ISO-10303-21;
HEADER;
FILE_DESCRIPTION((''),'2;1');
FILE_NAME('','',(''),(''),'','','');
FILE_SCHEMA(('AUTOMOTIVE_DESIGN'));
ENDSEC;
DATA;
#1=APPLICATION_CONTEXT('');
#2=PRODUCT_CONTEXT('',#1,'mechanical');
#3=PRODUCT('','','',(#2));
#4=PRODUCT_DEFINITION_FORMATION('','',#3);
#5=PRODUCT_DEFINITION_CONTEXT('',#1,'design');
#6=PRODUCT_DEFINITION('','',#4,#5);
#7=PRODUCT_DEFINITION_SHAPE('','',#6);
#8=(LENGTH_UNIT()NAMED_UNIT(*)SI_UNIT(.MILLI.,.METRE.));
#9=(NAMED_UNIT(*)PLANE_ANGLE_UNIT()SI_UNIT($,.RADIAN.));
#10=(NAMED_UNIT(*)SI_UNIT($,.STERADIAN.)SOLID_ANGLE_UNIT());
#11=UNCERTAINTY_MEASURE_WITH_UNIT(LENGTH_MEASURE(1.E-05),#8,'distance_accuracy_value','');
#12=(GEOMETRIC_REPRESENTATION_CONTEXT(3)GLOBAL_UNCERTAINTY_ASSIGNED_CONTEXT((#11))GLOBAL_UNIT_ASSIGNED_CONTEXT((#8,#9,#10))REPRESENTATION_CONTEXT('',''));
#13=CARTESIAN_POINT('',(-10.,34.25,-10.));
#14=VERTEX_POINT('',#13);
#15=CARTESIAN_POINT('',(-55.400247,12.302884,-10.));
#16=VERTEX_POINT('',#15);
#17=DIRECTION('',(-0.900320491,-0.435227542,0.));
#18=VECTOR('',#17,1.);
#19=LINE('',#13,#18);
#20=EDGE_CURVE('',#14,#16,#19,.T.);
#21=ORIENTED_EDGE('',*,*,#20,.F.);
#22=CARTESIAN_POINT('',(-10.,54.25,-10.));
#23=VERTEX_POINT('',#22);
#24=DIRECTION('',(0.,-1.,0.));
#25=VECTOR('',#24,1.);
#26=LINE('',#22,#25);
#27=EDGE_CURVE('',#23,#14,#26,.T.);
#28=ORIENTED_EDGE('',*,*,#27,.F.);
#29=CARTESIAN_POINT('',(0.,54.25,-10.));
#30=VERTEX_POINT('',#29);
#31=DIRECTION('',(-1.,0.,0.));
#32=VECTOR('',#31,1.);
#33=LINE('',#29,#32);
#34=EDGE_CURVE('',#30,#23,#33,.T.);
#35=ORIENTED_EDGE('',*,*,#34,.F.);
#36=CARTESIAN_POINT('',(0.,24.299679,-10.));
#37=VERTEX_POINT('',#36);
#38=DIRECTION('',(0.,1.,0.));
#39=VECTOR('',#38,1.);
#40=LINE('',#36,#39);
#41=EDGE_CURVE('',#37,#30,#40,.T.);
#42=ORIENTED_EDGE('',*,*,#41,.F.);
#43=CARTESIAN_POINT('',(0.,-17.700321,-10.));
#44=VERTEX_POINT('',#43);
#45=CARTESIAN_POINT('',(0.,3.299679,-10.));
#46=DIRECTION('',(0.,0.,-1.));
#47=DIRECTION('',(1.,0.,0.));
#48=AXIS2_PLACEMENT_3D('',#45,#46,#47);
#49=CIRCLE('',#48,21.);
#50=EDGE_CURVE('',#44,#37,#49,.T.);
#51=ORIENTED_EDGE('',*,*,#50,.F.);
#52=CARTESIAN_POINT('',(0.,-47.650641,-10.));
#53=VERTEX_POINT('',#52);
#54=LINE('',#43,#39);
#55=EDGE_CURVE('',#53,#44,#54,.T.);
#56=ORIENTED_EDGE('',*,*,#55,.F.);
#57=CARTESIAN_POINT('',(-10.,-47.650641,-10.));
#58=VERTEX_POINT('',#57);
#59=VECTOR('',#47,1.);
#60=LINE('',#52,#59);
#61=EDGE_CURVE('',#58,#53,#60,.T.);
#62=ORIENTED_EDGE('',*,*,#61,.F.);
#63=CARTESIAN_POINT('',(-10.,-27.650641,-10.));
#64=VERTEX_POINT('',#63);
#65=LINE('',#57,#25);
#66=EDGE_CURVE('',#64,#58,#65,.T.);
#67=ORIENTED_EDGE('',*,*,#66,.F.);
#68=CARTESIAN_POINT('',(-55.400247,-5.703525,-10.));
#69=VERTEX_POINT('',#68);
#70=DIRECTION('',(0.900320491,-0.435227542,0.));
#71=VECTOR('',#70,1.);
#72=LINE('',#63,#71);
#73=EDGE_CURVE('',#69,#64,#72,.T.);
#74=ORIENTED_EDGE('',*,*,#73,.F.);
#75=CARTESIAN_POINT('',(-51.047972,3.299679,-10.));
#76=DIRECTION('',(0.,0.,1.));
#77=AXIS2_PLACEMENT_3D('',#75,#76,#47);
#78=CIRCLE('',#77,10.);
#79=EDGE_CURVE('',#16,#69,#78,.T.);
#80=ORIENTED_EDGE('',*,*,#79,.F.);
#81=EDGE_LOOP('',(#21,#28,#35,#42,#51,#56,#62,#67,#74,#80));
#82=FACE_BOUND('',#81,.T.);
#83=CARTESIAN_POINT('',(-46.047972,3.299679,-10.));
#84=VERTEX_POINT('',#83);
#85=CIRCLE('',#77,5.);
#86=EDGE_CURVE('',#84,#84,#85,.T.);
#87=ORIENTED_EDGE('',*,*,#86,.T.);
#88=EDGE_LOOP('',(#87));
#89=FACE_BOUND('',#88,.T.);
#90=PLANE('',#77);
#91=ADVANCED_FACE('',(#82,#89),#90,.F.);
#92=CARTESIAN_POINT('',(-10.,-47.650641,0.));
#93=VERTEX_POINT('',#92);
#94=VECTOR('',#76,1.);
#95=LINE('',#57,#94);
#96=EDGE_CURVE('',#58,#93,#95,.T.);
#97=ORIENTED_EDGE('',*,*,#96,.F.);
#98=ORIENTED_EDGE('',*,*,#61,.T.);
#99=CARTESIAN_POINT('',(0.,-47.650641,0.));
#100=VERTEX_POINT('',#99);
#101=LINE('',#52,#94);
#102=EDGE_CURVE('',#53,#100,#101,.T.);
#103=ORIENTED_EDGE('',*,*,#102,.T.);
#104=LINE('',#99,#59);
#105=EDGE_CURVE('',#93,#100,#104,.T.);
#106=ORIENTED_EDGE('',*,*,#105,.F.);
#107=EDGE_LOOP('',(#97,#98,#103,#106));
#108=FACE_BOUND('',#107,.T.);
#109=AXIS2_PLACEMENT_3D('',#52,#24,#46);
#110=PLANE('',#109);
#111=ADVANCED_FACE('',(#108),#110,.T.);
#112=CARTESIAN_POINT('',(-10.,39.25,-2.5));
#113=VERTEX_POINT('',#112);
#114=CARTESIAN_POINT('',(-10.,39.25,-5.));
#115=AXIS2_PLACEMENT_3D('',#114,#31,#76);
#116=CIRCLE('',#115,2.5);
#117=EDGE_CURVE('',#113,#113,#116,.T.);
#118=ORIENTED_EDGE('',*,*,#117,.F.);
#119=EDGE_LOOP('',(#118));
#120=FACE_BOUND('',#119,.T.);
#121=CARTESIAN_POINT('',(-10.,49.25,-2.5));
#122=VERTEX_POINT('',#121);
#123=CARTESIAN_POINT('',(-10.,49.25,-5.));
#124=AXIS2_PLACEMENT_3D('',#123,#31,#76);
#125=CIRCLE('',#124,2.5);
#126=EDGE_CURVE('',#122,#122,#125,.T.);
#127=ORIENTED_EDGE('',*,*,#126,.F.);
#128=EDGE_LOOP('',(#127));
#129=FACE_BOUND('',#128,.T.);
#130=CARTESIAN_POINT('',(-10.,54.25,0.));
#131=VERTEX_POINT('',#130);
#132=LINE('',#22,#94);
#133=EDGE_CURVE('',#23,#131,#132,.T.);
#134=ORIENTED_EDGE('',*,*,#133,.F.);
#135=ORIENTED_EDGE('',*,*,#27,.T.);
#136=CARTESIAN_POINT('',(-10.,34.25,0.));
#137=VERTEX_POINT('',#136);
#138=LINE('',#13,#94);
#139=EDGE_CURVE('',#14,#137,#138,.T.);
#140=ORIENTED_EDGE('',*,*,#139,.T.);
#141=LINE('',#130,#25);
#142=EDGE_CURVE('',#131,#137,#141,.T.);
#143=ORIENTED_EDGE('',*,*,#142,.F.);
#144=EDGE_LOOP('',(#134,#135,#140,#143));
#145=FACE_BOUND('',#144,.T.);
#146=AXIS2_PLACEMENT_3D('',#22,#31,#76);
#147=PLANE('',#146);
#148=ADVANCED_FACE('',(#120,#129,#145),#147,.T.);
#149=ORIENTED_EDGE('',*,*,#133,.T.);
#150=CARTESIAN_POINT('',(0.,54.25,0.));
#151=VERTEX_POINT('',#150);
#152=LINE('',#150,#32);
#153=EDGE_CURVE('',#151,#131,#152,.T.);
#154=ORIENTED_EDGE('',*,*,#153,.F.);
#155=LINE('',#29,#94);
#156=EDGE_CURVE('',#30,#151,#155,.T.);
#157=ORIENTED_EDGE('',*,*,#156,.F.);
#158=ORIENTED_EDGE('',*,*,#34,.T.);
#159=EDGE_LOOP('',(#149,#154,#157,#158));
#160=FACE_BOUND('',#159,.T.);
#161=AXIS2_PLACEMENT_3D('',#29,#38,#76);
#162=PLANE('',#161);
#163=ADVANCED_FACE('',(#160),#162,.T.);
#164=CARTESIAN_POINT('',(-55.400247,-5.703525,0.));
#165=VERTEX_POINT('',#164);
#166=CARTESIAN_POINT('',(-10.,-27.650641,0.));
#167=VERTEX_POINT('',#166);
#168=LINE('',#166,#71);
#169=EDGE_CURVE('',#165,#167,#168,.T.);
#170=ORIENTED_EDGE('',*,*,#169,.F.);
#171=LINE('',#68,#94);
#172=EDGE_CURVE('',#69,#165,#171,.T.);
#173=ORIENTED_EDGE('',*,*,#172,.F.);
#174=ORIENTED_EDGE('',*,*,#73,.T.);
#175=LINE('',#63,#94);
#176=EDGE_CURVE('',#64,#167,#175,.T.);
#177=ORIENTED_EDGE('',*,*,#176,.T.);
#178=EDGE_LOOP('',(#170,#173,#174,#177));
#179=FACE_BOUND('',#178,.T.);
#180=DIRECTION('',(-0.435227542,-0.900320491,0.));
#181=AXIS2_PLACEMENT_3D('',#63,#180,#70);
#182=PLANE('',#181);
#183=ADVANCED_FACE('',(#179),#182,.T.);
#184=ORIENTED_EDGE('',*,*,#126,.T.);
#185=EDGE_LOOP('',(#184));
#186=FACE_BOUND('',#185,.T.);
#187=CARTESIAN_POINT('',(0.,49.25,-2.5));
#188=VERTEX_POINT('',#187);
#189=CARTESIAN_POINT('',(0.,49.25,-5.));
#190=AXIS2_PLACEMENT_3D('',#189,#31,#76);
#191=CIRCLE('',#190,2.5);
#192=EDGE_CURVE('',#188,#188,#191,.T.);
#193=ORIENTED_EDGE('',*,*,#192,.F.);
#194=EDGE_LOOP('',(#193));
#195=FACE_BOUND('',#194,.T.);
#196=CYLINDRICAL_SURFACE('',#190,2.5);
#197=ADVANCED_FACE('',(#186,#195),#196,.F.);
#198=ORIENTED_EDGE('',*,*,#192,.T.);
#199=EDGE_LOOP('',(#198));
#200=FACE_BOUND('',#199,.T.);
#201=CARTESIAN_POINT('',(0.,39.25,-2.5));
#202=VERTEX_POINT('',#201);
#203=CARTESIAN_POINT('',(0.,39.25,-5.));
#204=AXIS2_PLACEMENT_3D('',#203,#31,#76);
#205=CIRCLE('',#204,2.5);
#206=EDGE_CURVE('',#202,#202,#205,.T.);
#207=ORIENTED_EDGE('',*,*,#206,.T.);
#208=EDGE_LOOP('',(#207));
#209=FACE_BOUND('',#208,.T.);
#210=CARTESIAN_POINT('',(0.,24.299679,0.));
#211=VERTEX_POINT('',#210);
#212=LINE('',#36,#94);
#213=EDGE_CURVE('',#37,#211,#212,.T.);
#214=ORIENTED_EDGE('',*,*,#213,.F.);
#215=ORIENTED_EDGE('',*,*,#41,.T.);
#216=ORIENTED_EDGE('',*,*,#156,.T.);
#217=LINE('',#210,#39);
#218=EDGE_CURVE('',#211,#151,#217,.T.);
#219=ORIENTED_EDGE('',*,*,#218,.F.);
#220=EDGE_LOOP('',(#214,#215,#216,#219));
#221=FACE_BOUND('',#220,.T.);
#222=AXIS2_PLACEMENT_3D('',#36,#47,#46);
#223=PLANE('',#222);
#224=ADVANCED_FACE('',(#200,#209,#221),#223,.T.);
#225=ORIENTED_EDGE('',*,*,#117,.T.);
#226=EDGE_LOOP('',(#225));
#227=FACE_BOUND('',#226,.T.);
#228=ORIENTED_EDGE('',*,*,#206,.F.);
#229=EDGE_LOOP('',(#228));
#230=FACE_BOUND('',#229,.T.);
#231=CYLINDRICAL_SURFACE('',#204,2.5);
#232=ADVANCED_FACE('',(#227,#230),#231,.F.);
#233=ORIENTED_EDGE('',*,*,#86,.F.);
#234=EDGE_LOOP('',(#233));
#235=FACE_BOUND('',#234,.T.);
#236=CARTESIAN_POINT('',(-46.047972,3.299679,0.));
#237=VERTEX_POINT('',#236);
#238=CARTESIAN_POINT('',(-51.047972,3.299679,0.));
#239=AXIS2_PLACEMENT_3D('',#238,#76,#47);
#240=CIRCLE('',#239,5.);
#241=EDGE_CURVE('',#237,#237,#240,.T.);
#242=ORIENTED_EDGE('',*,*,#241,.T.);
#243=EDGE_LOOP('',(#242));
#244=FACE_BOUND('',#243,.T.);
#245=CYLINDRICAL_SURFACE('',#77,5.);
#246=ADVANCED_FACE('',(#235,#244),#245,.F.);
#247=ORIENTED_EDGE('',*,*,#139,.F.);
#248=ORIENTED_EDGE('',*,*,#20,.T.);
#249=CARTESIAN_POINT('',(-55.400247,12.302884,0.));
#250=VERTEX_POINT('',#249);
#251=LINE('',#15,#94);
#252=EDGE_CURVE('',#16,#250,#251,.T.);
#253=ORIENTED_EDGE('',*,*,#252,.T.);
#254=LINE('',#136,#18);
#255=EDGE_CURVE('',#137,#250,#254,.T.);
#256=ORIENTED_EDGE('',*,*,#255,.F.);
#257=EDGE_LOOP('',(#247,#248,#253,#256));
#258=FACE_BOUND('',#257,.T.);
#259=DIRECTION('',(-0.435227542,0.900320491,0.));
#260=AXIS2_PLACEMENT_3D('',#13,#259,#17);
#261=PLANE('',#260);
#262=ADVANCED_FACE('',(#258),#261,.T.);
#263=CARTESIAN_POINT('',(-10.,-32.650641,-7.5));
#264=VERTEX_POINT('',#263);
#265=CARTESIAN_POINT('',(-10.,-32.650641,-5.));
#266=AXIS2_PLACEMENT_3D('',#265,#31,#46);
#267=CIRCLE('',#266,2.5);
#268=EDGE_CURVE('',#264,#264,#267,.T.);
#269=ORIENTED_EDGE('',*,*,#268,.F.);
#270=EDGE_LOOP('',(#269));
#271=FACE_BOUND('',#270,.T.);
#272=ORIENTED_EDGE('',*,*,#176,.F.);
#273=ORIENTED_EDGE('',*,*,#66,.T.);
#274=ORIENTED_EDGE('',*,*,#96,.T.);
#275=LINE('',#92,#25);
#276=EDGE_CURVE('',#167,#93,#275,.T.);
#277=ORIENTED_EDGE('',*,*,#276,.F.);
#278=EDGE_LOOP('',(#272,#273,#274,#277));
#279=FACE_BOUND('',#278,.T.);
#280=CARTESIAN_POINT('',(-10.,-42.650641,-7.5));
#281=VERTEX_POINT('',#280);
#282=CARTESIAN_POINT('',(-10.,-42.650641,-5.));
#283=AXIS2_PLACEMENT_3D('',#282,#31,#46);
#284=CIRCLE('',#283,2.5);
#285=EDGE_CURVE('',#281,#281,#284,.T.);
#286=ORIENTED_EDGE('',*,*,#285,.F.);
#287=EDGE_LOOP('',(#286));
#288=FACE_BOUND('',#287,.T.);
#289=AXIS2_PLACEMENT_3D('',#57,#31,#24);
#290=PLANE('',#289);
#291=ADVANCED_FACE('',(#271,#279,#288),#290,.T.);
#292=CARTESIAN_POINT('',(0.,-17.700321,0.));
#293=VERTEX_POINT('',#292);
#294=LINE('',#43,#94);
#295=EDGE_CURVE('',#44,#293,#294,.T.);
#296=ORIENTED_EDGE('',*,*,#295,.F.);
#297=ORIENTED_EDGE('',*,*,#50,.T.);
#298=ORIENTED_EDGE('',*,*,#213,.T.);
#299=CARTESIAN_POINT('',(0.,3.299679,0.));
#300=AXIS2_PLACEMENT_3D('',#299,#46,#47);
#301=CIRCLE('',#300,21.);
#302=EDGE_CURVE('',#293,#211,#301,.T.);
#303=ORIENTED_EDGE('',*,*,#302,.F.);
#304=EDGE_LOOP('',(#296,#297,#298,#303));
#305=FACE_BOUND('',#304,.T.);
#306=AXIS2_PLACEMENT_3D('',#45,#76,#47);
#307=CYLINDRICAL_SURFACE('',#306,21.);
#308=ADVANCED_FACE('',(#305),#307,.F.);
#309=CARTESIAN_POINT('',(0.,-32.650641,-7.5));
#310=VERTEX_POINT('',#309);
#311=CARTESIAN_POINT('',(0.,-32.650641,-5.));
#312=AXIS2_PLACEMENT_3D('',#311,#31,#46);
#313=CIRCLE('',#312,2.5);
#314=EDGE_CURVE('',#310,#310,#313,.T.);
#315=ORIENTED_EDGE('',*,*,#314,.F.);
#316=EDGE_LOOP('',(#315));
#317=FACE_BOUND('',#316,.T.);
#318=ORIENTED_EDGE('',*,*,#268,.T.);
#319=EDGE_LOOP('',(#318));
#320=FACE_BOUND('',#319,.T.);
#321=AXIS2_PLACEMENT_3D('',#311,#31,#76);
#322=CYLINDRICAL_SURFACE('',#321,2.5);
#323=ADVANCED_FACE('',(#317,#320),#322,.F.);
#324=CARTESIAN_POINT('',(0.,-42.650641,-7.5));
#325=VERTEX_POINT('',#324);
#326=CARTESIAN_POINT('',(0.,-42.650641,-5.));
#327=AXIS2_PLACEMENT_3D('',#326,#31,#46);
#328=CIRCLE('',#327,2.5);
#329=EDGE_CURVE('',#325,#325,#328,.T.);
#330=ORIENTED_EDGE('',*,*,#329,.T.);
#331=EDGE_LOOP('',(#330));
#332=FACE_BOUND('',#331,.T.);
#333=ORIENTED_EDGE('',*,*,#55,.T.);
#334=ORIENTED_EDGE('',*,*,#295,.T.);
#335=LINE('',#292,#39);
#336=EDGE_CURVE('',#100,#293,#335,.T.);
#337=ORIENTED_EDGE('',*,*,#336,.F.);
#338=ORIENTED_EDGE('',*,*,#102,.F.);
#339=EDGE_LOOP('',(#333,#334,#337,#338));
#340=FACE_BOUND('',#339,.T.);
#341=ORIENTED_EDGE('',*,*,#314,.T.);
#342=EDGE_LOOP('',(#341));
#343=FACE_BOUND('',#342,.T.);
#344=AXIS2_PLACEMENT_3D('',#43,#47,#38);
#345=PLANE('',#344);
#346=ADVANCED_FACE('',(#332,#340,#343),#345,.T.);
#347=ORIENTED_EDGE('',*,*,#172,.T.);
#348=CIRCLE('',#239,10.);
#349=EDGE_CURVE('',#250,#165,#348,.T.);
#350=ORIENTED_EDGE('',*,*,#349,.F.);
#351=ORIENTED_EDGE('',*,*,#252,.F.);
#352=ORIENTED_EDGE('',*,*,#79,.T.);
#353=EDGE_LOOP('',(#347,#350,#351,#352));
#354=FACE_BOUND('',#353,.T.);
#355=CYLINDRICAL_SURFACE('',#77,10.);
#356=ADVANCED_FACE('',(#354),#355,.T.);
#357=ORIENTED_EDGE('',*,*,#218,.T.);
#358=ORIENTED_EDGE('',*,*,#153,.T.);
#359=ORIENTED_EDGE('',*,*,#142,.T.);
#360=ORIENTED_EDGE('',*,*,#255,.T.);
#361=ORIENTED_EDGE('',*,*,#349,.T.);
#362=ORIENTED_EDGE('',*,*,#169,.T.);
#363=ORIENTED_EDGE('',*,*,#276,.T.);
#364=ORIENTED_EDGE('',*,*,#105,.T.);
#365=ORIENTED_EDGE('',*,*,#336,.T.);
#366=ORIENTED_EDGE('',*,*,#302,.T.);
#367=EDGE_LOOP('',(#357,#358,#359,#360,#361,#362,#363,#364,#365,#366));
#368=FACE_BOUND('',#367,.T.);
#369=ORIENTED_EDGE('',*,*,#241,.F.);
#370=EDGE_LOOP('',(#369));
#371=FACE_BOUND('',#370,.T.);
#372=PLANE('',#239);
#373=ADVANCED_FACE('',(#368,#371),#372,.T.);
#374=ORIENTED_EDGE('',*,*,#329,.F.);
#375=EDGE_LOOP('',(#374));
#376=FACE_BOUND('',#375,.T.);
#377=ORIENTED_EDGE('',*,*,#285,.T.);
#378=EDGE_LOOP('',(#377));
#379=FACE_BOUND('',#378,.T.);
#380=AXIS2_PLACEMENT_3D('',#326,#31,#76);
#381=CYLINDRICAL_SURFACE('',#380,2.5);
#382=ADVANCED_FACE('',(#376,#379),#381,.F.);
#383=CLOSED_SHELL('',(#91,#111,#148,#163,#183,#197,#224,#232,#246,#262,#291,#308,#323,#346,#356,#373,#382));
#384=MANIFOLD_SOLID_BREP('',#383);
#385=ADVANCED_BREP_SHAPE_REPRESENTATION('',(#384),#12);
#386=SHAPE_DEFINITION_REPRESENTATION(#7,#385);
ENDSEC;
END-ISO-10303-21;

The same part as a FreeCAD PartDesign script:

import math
import FreeCAD as App
import Part
import Sketcher

V = App.Vector

doc = App.newDocument("Part")
body = doc.addObject("PartDesign::Body", "Body")

# Sketch on XY plane
sketch1 = body.newObject("Sketcher::SketchObject", "Sketch")
sketch1.AttachmentSupport = (doc.getObject("XY_Plane"), [""])
sketch1.MapMode = "FlatFace"
sketch1.addGeometry(Part.LineSegment(V(0, 24.299679, 0), V(0, 54.25, 0)), False)
sketch1.addGeometry(Part.LineSegment(V(0, 54.25, 0), V(-10, 54.25, 0)), False)
sketch1.addGeometry(Part.LineSegment(V(-10, 54.25, 0), V(-10, 34.25, 0)), False)
sketch1.addGeometry(Part.LineSegment(V(-10, 34.25, 0), V(-55.400247, 12.302884, 0)), False)
sketch1.addGeometry(Part.ArcOfCircle(Part.Circle(V(-51.047972, 3.299679, 0), V(0, 0, 1), 10), math.radians(115.799774), math.radians(244.200226)), False)
sketch1.addGeometry(Part.LineSegment(V(-55.400247, -5.703525, 0), V(-10, -27.650641, 0)), False)
sketch1.addGeometry(Part.LineSegment(V(-10, -27.650641, 0), V(-10, -47.650641, 0)), False)
sketch1.addGeometry(Part.LineSegment(V(-10, -47.650641, 0), V(0, -47.650641, 0)), False)
sketch1.addGeometry(Part.LineSegment(V(0, -47.650641, 0), V(0, -17.700321, 0)), False)
sketch1.addGeometry(Part.ArcOfCircle(Part.Circle(V(0, 3.299679, 0), V(0, 0, 1), 21), math.radians(90), math.radians(270)), False)
sketch1.addConstraint(Sketcher.Constraint("Coincident", 0, 2, 1, 1))
sketch1.addConstraint(Sketcher.Constraint("Coincident", 1, 2, 2, 1))
sketch1.addConstraint(Sketcher.Constraint("Coincident", 2, 2, 3, 1))
sketch1.addConstraint(Sketcher.Constraint("Tangent", 3, 2, 4, 1))
sketch1.addConstraint(Sketcher.Constraint("Tangent", 4, 2, 5, 1))
sketch1.addConstraint(Sketcher.Constraint("Coincident", 5, 2, 6, 1))
sketch1.addConstraint(Sketcher.Constraint("Coincident", 6, 2, 7, 1))
sketch1.addConstraint(Sketcher.Constraint("Coincident", 7, 2, 8, 1))
sketch1.addConstraint(Sketcher.Constraint("Coincident", 8, 2, 9, 2))
sketch1.addConstraint(Sketcher.Constraint("Coincident", 9, 1, 0, 1))
sketch1.addConstraint(Sketcher.Constraint("Vertical", 0))
sketch1.addConstraint(Sketcher.Constraint("Horizontal", 1))
sketch1.addConstraint(Sketcher.Constraint("Vertical", 2))
sketch1.addConstraint(Sketcher.Constraint("Vertical", 6))
sketch1.addConstraint(Sketcher.Constraint("Horizontal", 7))
sketch1.addConstraint(Sketcher.Constraint("Vertical", 8))
sketch1.addConstraint(Sketcher.Constraint("PointOnObject", 9, 3, -2))
sketch1.addConstraint(Sketcher.Constraint("PointOnObject", 0, 2, -2))
sketch1.addConstraint(Sketcher.Constraint("PointOnObject", 7, 2, -2))
sketch1.addConstraint(Sketcher.Constraint("Horizontal", 4, 3, 9, 3))
sketch1.addConstraint(Sketcher.Constraint("Vertical", 3, 2, 4, 2))
sketch1.addConstraint(Sketcher.Constraint("Vertical", 2, 2, 5, 2))
sketch1.addConstraint(Sketcher.Constraint("Equal", 2, 6))
sketch1.addConstraint(Sketcher.Constraint("Radius", 4, 10.0))
sketch1.addConstraint(Sketcher.Constraint("Radius", 9, 21.0))
sketch1.addConstraint(Sketcher.Constraint("DistanceX", 1, 2, 1, 1, 10.0))
sketch1.addConstraint(Sketcher.Constraint("DistanceY", 2, 2, 2, 1, 20.0))
sketch1.addConstraint(Sketcher.Constraint("DistanceY", -1, 1, 0, 2, 54.25))
sketch1.addConstraint(Sketcher.Constraint("DistanceY", 0, 1, 0, 2, 29.950321))
sketch1.addConstraint(Sketcher.Constraint("Distance", 3, 50.426762))
pad1 = body.newObject("PartDesign::Pad", "Pad")
pad1.Profile = sketch1
pad1.Length = 10
pad1.Reversed = True

# Sketch on XY plane
sketch2 = body.newObject("Sketcher::SketchObject", "Sketch001")
sketch2.AttachmentSupport = (doc.getObject("XY_Plane"), [""])
sketch2.MapMode = "FlatFace"
sketch2.addGeometry(Part.Circle(V(-51.047972, 3.299679, 0), V(0, 0, 1), 5), False)
sketch2.addConstraint(Sketcher.Constraint("Diameter", 0, 10.0))
sketch2.addConstraint(Sketcher.Constraint("DistanceX", 0, 3, -1, 1, 51.047972))
sketch2.addConstraint(Sketcher.Constraint("DistanceY", -1, 1, 0, 3, 3.299679))
pocket1 = body.newObject("PartDesign::Pocket", "Pocket")
pocket1.Profile = sketch2
pocket1.Type = "ThroughAll"

# Sketch on YZ plane
sketch3 = body.newObject("Sketcher::SketchObject", "Sketch002")
sketch3.AttachmentSupport = (doc.getObject("YZ_Plane"), [""])
sketch3.MapMode = "FlatFace"
sketch3.AttachmentOffset = App.Placement(V(0, 0, -10), App.Rotation())
sketch3.addGeometry(Part.Circle(V(49.25, -5, 0), V(0, 0, 1), 2.5), False)
sketch3.addGeometry(Part.Circle(V(39.25, -5, 0), V(0, 0, 1), 2.5), False)
sketch3.addGeometry(Part.Circle(V(-32.650641, -5, 0), V(0, 0, 1), 2.5), False)
sketch3.addGeometry(Part.Circle(V(-42.650641, -5, 0), V(0, 0, 1), 2.5), False)
sketch3.addConstraint(Sketcher.Constraint("Equal", 0, 1))
sketch3.addConstraint(Sketcher.Constraint("Equal", 1, 2))
sketch3.addConstraint(Sketcher.Constraint("Equal", 2, 3))
sketch3.addConstraint(Sketcher.Constraint("Horizontal", 0, 3, 1, 3))
sketch3.addConstraint(Sketcher.Constraint("Horizontal", 1, 3, 2, 3))
sketch3.addConstraint(Sketcher.Constraint("Horizontal", 2, 3, 3, 3))
sketch3.addConstraint(Sketcher.Constraint("Diameter", 0, 5.0))
sketch3.addConstraint(Sketcher.Constraint("DistanceY", 0, 3, -1, 1, 5.0))
sketch3.addConstraint(Sketcher.Constraint("DistanceX", 1, 3, 0, 3, 10.0))
sketch3.addConstraint(Sketcher.Constraint("DistanceX", 3, 3, 2, 3, 10.0))
sketch3.addConstraint(Sketcher.Constraint("DistanceX", -1, 1, 0, 3, 49.25))
sketch3.addConstraint(Sketcher.Constraint("DistanceX", 2, 3, -1, 1, 32.650641))
pocket2 = body.newObject("PartDesign::Pocket", "Pocket001")
pocket2.Profile = sketch3
pocket2.Type = "ThroughAll"
pocket2.Reversed = True

doc.recompute()
